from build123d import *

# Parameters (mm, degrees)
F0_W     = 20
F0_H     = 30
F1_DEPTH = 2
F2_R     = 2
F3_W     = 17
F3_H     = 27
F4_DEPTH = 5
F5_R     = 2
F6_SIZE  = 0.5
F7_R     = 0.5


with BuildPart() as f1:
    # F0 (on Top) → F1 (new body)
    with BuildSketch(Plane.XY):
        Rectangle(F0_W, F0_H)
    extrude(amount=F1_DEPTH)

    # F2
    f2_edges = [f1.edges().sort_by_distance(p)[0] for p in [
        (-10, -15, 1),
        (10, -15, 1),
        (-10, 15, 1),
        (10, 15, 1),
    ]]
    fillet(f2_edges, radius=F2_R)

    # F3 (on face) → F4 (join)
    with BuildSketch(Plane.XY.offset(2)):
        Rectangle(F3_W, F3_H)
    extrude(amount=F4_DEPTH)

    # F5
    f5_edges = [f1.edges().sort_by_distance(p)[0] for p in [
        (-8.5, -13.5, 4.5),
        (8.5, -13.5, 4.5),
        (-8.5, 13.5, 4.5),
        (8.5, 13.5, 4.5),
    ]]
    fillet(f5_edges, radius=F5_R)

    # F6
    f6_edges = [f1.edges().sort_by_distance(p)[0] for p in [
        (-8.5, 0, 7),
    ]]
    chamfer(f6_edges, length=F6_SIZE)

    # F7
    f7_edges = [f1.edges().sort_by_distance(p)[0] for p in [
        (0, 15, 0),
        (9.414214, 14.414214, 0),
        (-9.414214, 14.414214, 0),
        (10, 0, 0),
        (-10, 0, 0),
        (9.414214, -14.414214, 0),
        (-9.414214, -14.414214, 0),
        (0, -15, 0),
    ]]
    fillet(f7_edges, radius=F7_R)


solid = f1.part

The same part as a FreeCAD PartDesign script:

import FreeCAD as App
import Part
import Sketcher
from FreeCAD import Vector
Q = App.Units.Quantity


def edges_at(feature, points):
    """Names of the edges that pass closest to the given points."""
    edges = feature.Shape.Edges
    near = lambda p: min(range(len(edges)), key=lambda i: edges[i].distToShape(Part.Vertex(*p))[0])
    return sorted({f"Edge{near(p) + 1}" for p in points})


def add_polygon(sketch, points):
    """Adds a closed chain of lines whose ends are joined by coincident constraints."""
    first, n = sketch.GeometryCount, len(points)
    for a, b in zip(points, points[1:] + points[:1]):
        sketch.addGeometry(Part.LineSegment(App.Vector(*a, 0), App.Vector(*b, 0)), False)
    for i in range(n):
        sketch.addConstraint(Sketcher.Constraint("Coincident", first + i, 2, first + (i + 1) % n, 1))

doc = App.newDocument("Part")
body = doc.addObject("PartDesign::Body", "Body")

sketch1 = body.newObject("Sketcher::SketchObject", "Sketch")
sketch1.AttachmentSupport = (doc.getObject("XY_Plane"), [""])
sketch1.MapMode = "FlatFace"
add_polygon(sketch1, [(-10, 15), (-10, -15), (10, -15), (10, 15)])
sketch1.addConstraint(Sketcher.Constraint("Vertical", 0))
sketch1.addConstraint(Sketcher.Constraint("Horizontal", 1))
sketch1.addConstraint(Sketcher.Constraint("Vertical", 2))
sketch1.addConstraint(Sketcher.Constraint("Horizontal", 3))
sketch1.addConstraint(Sketcher.Constraint("Symmetric", 0, 2, 2, 2, -1, 1))
sketch1.addConstraint(Sketcher.Constraint("DistanceX", 1, 1, 1, 2, Q("20 mm")))
sketch1.addConstraint(Sketcher.Constraint("DistanceY", 0, 2, 0, 1, Q("30 mm")))
pad1 = body.newObject("PartDesign::Pad", "Pad")
pad1.Profile = sketch1
pad1.Length = 2
doc.recompute()

fillet = body.newObject("PartDesign::Fillet", "Fillet")
fillet.Base = (pad1, edges_at(pad1, [
    (-10, -15, 1),
    (10, -15, 1),
    (-10, 15, 1),
    (10, 15, 1),
]))
fillet.Radius = 2

sketch2 = body.newObject("Sketcher::SketchObject", "Sketch001")
sketch2.AttachmentSupport = (doc.getObject("XY_Plane"), [""])
sketch2.MapMode = "FlatFace"
sketch2.AttachmentOffset = App.Placement(Vector(0, 0, 2), App.Rotation())
add_polygon(sketch2, [(-8, 14), (-8, -14), (8, -14), (8, 14)])
sketch2.addConstraint(Sketcher.Constraint("Vertical", 0))
sketch2.addConstraint(Sketcher.Constraint("Horizontal", 1))
sketch2.addConstraint(Sketcher.Constraint("Vertical", 2))
sketch2.addConstraint(Sketcher.Constraint("Horizontal", 3))
sketch2.addConstraint(Sketcher.Constraint("Symmetric", 0, 2, 2, 2, -1, 1))
sketch2.addConstraint(Sketcher.Constraint("DistanceX", 1, 1, 1, 2, Q("17 mm")))
sketch2.addConstraint(Sketcher.Constraint("DistanceY", 0, 2, 0, 1, Q("27 mm")))
pad2 = body.newObject("PartDesign::Pad", "Pad001")
pad2.Profile = sketch2
pad2.Length = 5
doc.recompute()

fillet2 = body.newObject("PartDesign::Fillet", "Fillet001")
fillet2.Base = (pad2, edges_at(pad2, [
    (-8.5, -13.5, 4.5),
    (8.5, -13.5, 4.5),
    (-8.5, 13.5, 4.5),
    (8.5, 13.5, 4.5),
]))
fillet2.Radius = 2
doc.recompute()

chamfer = body.newObject("PartDesign::Chamfer", "Chamfer")
chamfer.Base = (fillet2, edges_at(fillet2, [(-8.5, 0, 7)]))
chamfer.Size = 0.5
doc.recompute()

fillet3 = body.newObject("PartDesign::Fillet", "Fillet002")
fillet3.Base = (chamfer, edges_at(chamfer, [
    (0, 15, 0),
    (9.414, 14.414, 0),
    (-9.414, 14.414, 0),
    (10, 0, 0),
    (-10, 0, 0),
    (9.414, -14.414, 0),
    (-9.414, -14.414, 0),
    (0, -15, 0),
]))
fillet3.Radius = 0.5

doc.recompute()
